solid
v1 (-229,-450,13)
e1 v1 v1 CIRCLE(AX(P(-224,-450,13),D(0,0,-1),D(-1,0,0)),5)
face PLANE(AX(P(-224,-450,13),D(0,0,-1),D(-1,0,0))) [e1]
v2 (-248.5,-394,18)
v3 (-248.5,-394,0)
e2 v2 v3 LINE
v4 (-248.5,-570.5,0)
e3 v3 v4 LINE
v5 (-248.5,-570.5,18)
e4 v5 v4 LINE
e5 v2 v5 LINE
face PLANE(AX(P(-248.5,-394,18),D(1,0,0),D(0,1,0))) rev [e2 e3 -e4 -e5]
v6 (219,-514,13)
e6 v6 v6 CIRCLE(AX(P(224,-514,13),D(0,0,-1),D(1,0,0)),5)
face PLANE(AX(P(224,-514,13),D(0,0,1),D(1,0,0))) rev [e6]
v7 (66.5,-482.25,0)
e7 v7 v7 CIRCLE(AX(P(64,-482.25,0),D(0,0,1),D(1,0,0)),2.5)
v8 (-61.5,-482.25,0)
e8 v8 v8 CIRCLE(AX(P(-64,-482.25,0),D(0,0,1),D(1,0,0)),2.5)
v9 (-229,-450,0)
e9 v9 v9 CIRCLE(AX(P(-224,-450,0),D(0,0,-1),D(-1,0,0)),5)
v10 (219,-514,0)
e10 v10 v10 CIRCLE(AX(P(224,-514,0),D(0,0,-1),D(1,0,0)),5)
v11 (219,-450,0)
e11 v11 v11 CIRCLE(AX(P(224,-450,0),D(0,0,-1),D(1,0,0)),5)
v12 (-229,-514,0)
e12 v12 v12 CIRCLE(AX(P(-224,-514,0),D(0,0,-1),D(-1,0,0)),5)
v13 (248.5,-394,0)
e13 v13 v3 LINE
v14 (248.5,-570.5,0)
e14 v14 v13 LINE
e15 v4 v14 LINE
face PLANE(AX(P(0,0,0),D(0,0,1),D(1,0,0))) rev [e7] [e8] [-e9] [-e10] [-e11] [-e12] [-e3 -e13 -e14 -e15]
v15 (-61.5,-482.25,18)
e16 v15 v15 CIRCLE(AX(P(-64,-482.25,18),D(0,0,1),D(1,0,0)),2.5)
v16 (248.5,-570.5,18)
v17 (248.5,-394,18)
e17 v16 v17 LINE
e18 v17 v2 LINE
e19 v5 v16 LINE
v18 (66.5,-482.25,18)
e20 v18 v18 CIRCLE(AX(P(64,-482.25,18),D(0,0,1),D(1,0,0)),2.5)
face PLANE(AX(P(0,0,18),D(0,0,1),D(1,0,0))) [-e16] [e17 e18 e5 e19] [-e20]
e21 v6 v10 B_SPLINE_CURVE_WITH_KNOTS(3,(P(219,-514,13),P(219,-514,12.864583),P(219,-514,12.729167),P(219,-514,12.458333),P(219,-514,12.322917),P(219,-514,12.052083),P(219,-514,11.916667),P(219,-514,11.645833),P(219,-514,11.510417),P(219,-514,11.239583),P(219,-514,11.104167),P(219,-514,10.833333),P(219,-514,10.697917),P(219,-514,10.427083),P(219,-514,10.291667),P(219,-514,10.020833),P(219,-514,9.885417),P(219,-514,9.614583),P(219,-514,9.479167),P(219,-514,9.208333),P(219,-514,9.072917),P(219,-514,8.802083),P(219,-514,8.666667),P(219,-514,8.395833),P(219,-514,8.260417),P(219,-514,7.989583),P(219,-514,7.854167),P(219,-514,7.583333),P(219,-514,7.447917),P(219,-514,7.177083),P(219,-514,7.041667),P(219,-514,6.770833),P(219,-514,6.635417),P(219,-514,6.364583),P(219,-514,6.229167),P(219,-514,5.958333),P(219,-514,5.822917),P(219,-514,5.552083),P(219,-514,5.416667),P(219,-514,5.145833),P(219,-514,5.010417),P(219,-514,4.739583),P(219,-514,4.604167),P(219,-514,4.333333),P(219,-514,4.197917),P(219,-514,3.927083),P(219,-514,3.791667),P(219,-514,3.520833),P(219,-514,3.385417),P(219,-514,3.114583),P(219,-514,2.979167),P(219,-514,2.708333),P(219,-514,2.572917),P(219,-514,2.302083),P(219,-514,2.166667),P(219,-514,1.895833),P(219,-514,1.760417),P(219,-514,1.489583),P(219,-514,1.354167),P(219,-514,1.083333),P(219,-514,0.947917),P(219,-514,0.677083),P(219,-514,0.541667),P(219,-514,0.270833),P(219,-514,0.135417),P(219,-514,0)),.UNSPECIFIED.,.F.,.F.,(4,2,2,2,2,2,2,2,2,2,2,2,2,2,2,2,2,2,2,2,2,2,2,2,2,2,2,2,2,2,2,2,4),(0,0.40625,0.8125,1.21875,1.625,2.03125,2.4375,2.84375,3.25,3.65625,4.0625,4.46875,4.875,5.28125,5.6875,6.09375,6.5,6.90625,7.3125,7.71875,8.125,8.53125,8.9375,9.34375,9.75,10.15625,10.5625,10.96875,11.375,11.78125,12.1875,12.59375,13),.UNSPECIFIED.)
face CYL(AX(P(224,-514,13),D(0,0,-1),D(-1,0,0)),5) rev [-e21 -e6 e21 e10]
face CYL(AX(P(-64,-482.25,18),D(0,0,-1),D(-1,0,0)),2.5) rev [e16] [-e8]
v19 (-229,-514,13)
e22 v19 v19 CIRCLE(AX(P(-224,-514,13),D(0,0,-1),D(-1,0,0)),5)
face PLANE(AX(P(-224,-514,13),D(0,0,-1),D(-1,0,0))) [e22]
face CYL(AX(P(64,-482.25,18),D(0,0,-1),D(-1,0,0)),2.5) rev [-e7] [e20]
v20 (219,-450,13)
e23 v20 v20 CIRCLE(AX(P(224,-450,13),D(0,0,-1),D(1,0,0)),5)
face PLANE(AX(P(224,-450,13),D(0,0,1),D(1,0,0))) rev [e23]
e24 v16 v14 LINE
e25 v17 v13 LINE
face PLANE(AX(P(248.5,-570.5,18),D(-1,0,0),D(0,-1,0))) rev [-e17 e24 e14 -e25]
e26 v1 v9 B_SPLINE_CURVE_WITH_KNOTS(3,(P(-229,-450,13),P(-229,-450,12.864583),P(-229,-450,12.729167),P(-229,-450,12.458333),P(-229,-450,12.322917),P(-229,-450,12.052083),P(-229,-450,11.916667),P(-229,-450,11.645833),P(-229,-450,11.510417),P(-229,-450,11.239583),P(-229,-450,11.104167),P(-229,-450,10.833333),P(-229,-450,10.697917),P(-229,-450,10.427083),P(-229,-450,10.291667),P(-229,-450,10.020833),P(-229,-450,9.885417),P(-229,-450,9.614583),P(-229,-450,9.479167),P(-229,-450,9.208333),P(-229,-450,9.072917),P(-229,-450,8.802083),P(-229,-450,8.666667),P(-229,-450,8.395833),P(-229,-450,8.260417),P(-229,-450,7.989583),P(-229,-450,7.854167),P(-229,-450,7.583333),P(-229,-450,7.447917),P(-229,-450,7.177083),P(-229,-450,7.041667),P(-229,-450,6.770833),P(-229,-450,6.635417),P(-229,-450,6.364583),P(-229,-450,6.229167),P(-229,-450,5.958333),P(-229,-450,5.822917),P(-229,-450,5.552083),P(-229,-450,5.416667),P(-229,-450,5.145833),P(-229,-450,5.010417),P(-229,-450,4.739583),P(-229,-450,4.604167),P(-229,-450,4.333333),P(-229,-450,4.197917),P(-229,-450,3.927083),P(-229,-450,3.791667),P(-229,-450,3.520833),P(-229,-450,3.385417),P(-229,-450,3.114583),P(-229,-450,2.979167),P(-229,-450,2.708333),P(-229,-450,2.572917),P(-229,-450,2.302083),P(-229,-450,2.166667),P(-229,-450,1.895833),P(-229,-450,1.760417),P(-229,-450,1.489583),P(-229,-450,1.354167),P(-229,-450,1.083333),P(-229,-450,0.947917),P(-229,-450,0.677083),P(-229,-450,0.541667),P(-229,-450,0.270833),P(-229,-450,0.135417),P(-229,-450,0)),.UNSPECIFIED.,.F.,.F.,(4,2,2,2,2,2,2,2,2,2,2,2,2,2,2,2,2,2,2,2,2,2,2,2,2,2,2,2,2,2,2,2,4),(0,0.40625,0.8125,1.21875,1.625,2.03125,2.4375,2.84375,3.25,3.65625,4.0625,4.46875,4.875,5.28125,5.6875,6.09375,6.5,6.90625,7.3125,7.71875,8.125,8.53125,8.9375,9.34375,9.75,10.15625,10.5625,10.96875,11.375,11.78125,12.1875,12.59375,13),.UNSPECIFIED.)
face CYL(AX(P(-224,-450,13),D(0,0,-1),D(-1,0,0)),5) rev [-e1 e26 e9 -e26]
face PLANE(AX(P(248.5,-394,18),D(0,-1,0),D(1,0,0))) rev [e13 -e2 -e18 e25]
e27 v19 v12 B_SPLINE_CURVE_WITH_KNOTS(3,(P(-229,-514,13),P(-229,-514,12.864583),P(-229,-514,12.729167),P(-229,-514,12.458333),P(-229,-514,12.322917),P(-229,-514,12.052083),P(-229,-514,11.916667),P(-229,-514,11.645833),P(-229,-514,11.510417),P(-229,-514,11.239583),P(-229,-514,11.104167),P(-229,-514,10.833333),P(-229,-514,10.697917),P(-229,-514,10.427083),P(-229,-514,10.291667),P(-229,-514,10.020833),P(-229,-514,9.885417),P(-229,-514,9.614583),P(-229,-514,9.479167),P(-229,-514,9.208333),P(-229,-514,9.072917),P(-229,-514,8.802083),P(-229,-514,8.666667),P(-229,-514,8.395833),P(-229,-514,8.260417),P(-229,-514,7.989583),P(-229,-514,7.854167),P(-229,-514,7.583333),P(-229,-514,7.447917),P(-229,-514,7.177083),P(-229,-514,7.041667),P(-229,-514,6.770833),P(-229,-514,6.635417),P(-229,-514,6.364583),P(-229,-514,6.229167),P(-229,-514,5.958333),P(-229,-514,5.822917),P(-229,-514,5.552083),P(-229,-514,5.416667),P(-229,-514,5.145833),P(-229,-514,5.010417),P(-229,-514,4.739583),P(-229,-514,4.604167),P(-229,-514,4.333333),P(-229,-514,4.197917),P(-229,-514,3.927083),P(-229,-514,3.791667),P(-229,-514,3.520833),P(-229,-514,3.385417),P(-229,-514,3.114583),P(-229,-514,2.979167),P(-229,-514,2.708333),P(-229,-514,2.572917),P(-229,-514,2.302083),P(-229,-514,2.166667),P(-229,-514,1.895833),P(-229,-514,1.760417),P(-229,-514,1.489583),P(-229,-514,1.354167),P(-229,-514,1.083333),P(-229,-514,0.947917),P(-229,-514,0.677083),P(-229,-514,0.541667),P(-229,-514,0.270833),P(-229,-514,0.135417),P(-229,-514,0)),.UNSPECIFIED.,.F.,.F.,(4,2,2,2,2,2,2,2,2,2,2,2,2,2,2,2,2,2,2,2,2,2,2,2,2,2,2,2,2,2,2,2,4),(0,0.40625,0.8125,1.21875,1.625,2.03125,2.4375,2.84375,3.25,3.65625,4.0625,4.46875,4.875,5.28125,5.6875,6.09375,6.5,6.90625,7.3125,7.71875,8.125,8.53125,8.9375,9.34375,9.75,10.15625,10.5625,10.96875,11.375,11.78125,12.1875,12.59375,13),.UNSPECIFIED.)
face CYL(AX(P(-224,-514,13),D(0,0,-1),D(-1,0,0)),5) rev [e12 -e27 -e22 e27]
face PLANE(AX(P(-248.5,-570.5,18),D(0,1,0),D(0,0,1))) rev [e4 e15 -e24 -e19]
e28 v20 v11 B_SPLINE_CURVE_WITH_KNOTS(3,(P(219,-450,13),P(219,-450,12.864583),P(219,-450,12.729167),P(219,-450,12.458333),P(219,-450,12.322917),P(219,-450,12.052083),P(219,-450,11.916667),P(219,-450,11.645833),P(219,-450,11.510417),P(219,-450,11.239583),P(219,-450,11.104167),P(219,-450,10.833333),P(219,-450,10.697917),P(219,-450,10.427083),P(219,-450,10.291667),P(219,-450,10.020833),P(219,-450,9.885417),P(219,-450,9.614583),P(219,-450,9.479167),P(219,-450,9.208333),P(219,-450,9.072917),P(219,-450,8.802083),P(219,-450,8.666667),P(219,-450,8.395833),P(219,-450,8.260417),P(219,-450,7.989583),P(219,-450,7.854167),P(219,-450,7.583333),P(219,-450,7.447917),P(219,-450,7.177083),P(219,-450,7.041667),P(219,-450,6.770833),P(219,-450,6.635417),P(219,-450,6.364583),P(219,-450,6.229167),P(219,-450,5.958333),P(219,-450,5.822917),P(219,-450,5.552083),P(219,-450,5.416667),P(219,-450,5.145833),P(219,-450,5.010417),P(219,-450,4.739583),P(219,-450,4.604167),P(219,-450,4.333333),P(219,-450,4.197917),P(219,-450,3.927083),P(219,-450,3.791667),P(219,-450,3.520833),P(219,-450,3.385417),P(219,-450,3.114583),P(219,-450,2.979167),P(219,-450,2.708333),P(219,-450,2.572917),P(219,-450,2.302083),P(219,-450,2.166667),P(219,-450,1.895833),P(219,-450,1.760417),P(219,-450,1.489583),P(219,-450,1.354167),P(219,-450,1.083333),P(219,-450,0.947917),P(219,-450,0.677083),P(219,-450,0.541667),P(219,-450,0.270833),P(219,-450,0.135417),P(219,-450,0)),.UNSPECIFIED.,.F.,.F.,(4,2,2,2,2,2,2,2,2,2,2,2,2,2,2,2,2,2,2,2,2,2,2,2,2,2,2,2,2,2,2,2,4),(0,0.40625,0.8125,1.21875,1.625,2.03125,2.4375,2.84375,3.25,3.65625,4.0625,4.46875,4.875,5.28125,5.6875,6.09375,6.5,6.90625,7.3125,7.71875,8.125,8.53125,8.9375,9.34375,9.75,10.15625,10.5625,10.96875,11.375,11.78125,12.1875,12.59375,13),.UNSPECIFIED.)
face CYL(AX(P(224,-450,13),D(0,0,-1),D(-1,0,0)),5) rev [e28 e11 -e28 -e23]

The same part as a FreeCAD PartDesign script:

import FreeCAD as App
import Part
import Sketcher

V = App.Vector


def add_polygon(sketch, points):
    """Adds a closed chain of lines whose ends are joined by coincident constraints."""
    first, n = sketch.GeometryCount, len(points)
    for a, b in zip(points, points[1:] + points[:1]):
        sketch.addGeometry(Part.LineSegment(App.Vector(*a, 0), App.Vector(*b, 0)), False)
    for i in range(n):
        sketch.addConstraint(Sketcher.Constraint("Coincident", first + i, 2, first + (i + 1) % n, 1))

doc = App.newDocument("Part")
body = doc.addObject("PartDesign::Body", "Body")

# Sketch on XY plane
sketch1 = body.newObject("Sketcher::SketchObject", "Sketch")
sketch1.AttachmentSupport = (doc.getObject("XY_Plane"), [""])
sketch1.MapMode = "FlatFace"
add_polygon(sketch1, [(-248.5, -394), (-248.5, -570.5), (248.5, -570.5), (248.5, -394)])  # lines 0-3
sketch1.addGeometry(Part.Circle(V(-64, -482.25, 0), V(0, 0, 1), 2.5), False)  # 4
sketch1.addGeometry(Part.Circle(V(64, -482.25, 0), V(0, 0, 1), 2.5), False)  # 5
sketch1.addConstraint([
    Sketcher.Constraint("Vertical", 0),
    Sketcher.Constraint("Horizontal", 1),
    Sketcher.Constraint("Vertical", 2),
    Sketcher.Constraint("Horizontal", 3),
    Sketcher.Constraint("Equal", 4, 5),
    Sketcher.Constraint("Symmetric", 4, 3, 5, 3, -2),
    Sketcher.Constraint("Diameter", 4, 5.0),
    Sketcher.Constraint("DistanceX", 1, 1, 1, 2, 497.0),
    Sketcher.Constraint("DistanceY", 0, 2, 0, 1, 176.5),
    Sketcher.Constraint("DistanceX", 4, 3, -1, 1, 64.0),
    Sketcher.Constraint("DistanceY", 2, 2, -1, 1, 394.0),
    Sketcher.Constraint("DistanceX", 0, 2, -1, 1, 248.5),
    Sketcher.Constraint("DistanceY", 4, 3, -1, 1, 482.25),
])
pad1 = body.newObject("PartDesign::Pad", "Pad")
pad1.Profile = sketch1
pad1.Length = 18

# Sketch on XY plane
sketch2 = body.newObject("Sketcher::SketchObject", "Sketch001")
sketch2.AttachmentSupport = (doc.getObject("XY_Plane"), [""])
sketch2.MapMode = "FlatFace"
sketch2.addGeometry([
    Part.Circle(V(-224, -514, 0), V(0, 0, 1), 5),
    Part.Circle(V(224, -514, 0), V(0, 0, 1), 5),
    Part.Circle(V(-224, -450, 0), V(0, 0, 1), 5),
    Part.Circle(V(224, -450, 0), V(0, 0, 1), 5),
], False)
sketch2.addConstraint([
    Sketcher.Constraint("Equal", 0, 1),
    Sketcher.Constraint("Equal", 1, 2),
    Sketcher.Constraint("Equal", 2, 3),
    Sketcher.Constraint("Symmetric", 0, 3, 1, 3, -2),
    Sketcher.Constraint("Symmetric", 2, 3, 3, 3, -2),
    Sketcher.Constraint("Vertical", 0, 3, 2, 3),
    Sketcher.Constraint("Diameter", 0, 10.0),
    Sketcher.Constraint("DistanceX", 0, 3, -1, 1, 224.0),
    Sketcher.Constraint("DistanceY", 0, 3, -1, 1, 514.0),
    Sketcher.Constraint("DistanceY", 2, 3, -1, 1, 450.0),
])
pocket1 = body.newObject("PartDesign::Pocket", "Pocket")
pocket1.Profile = sketch2
pocket1.Length = 13
pocket1.Reversed = True

doc.recompute()
